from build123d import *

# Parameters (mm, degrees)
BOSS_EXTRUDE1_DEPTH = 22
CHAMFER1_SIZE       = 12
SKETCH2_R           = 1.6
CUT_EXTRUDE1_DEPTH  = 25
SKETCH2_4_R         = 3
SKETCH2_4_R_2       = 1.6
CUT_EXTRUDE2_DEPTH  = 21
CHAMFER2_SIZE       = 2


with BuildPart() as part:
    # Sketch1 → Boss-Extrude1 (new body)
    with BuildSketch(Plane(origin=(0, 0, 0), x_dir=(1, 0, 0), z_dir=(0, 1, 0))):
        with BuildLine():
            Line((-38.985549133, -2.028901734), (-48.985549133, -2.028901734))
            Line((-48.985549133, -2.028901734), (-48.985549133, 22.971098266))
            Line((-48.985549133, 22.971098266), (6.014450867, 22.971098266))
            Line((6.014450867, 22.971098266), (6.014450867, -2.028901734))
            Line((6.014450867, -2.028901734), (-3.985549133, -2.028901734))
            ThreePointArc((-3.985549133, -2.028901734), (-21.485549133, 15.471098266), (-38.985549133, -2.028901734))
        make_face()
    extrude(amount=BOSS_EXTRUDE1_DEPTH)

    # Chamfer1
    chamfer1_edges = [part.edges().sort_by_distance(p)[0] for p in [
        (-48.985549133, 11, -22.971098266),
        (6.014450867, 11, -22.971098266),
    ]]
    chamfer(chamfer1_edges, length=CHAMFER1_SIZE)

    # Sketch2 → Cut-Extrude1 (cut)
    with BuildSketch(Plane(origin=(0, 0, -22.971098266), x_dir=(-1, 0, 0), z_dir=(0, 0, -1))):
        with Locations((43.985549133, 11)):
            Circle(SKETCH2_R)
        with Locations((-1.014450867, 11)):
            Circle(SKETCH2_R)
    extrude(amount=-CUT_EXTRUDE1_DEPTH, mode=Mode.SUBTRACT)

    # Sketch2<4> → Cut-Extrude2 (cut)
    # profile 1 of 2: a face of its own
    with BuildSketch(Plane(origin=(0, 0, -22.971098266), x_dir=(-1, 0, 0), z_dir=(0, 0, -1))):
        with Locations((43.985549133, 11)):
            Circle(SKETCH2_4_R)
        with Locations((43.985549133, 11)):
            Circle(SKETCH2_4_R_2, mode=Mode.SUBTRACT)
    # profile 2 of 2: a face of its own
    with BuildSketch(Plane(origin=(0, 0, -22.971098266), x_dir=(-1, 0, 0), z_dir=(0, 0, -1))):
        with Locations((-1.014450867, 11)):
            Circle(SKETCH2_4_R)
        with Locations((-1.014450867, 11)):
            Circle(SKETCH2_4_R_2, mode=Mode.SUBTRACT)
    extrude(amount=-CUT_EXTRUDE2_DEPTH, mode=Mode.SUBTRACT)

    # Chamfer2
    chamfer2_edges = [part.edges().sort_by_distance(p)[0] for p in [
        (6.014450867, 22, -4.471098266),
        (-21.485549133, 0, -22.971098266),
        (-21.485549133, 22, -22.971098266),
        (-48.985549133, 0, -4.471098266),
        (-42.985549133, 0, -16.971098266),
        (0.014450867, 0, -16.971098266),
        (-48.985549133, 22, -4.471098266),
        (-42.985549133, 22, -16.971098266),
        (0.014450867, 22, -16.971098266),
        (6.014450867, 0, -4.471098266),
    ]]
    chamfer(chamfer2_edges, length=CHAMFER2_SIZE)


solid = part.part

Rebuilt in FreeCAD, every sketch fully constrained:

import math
import FreeCAD as App
import Part
import Sketcher

V = App.Vector


def edges_at(feature, points):
    """Names of the edges that pass closest to the given points."""
    edges = feature.Shape.Edges
    near = lambda p: min(range(len(edges)), key=lambda i: edges[i].distToShape(Part.Vertex(*p))[0])
    return sorted({f"Edge{near(p) + 1}" for p in points})

doc = App.newDocument("Part")
body = doc.addObject("PartDesign::Body", "Body")

# Sketch on XZ plane
sketch1 = doc.addObject("Sketcher::SketchObject", "Sketch")
body.addObject(sketch1)
sketch1.AttachmentSupport = (doc.XZ_Plane, [""])
sketch1.MapMode = "FlatFace"
sketch1.addGeometry([
    Part.LineSegment(V(-48.985549, 2.028902, 0), V(-38.985549, 2.028902, 0)),  # 0
    Part.ArcOfCircle(Part.Circle(V(-21.485549, 2.028902, 0), V(0, 0, 1), 17.5), math.radians(180), math.radians(360)),  # 1
    Part.LineSegment(V(-3.985549, 2.028902, 0), V(6.014451, 2.028902, 0)),  # 2
    Part.LineSegment(V(6.014451, 2.028902, 0), V(6.014451, -22.971098, 0)),  # 3
    Part.LineSegment(V(6.014451, -22.971098, 0), V(-48.985549, -22.971098, 0)),  # 4
    Part.LineSegment(V(-48.985549, -22.971098, 0), V(-48.985549, 2.028902, 0)),  # 5
], False)
sketch1.addConstraint([
    Sketcher.Constraint("Coincident", 0, 2, 1, 1),
    Sketcher.Constraint("Coincident", 1, 2, 2, 1),
    Sketcher.Constraint("Coincident", 2, 2, 3, 1),
    Sketcher.Constraint("Coincident", 3, 2, 4, 1),
    Sketcher.Constraint("Coincident", 4, 2, 5, 1),
    Sketcher.Constraint("Coincident", 5, 2, 0, 1),
    Sketcher.Constraint("Horizontal", 0),
    Sketcher.Constraint("Horizontal", 2),
    Sketcher.Constraint("Vertical", 3),
    Sketcher.Constraint("Horizontal", 4),
    Sketcher.Constraint("Vertical", 5),
    Sketcher.Constraint("Horizontal", 1, 3, 0, 2),
    Sketcher.Constraint("Horizontal", 0, 2, 1, 2),
    Sketcher.Constraint("Equal", 0, 2),
    Sketcher.Constraint("Radius", 1, 17.5),
    Sketcher.Constraint("DistanceX", 0, 1, 0, 2, 10.0),
    Sketcher.Constraint("DistanceY", 3, 2, 3, 1, 25.0),
    Sketcher.Constraint("DistanceY", -1, 1, 1, 3, 2.028902),
    Sketcher.Constraint("DistanceX", 1, 3, -1, 1, 21.485549),
])
pad1 = doc.addObject("PartDesign::Pad", "Pad")
body.addObject(pad1)
pad1.Profile = sketch1
pad1.Length = 22
pad1.Reversed = True
doc.recompute()

chamfer = doc.addObject("PartDesign::Chamfer", "Chamfer")
body.addObject(chamfer)
chamfer.Base = (pad1, edges_at(pad1, [(-48.986, 11, -22.971), (6.014, 11, -22.971)]))
chamfer.Size = 12

# Sketch on XY plane
sketch2 = doc.addObject("Sketcher::SketchObject", "Sketch001")
body.addObject(sketch2)
sketch2.AttachmentSupport = (doc.XY_Plane, [""])
sketch2.MapMode = "FlatFace"
sketch2.AttachmentOffset = App.Placement(V(0, 0, -22.971098), App.Rotation())
sketch2.addGeometry([
    Part.Circle(V(-43.985549, 11, 0), V(0, 0, 1), 1.6),
    Part.Circle(V(1.014451, 11, 0), V(0, 0, 1), 1.6),
], False)
sketch2.addConstraint([
    Sketcher.Constraint("Equal", 0, 1),
    Sketcher.Constraint("Horizontal", 0, 3, 1, 3),
    Sketcher.Constraint("Diameter", 0, 3.2),
    Sketcher.Constraint("DistanceY", -1, 1, 0, 3, 11.0),
    Sketcher.Constraint("DistanceX", 0, 3, 1, 3, 45.0),
    Sketcher.Constraint("DistanceX", 0, 3, -1, 1, 43.985549),
])
pocket1 = doc.addObject("PartDesign::Pocket", "Pocket")
body.addObject(pocket1)
pocket1.Profile = sketch2
pocket1.Length = 25
pocket1.Reversed = True

# Sketch on XY plane
sketch3 = doc.addObject("Sketcher::SketchObject", "Sketch002")
body.addObject(sketch3)
sketch3.AttachmentSupport = (doc.XY_Plane, [""])
sketch3.MapMode = "FlatFace"
sketch3.AttachmentOffset = App.Placement(V(0, 0, -22.971098), App.Rotation())
sketch3.addGeometry([
    Part.Circle(V(-43.985549, 11, 0), V(0, 0, 1), 3),
    Part.Circle(V(-43.985549, 11, 0), V(0, 0, 1), 1.6),
    Part.Circle(V(1.014451, 11, 0), V(0, 0, 1), 3),
    Part.Circle(V(1.014451, 11, 0), V(0, 0, 1), 1.6),
], False)
sketch3.addConstraint([
    Sketcher.Constraint("Coincident", 1, 3, 0, 3),
    Sketcher.Constraint("Coincident", 3, 3, 2, 3),
    Sketcher.Constraint("Equal", 0, 2),
    Sketcher.Constraint("Equal", 1, 3),
    Sketcher.Constraint("Horizontal", 1, 3, 2, 3),
    Sketcher.Constraint("Diameter", 0, 6.0),
    Sketcher.Constraint("Diameter", 1, 3.2),
    Sketcher.Constraint("DistanceY", -1, 1, 0, 3, 11.0),
    Sketcher.Constraint("DistanceX", 0, 3, 2, 3, 45.0),
    Sketcher.Constraint("DistanceX", 0, 3, -1, 1, 43.985549),
])
pocket2 = doc.addObject("PartDesign::Pocket", "Pocket001")
body.addObject(pocket2)
pocket2.Profile = sketch3
pocket2.Length = 21
pocket2.Reversed = True
doc.recompute()

chamfer2 = doc.addObject("PartDesign::Chamfer", "Chamfer001")
body.addObject(chamfer2)
chamfer2.Base = (pocket2, edges_at(pocket2, [
    (6.014, 22, -4.471),
    (-21.486, 0, -22.971),
    (-21.486, 22, -22.971),
    (-48.986, 0, -4.471),
    (-42.986, 0, -16.971),
    (0.014, 0, -16.971),
    (-48.986, 22, -4.471),
    (-42.986, 22, -16.971),
    (0.014, 22, -16.971),
    (6.014, 0, -4.471),
]))
chamfer2.Size = 2

doc.recompute()
